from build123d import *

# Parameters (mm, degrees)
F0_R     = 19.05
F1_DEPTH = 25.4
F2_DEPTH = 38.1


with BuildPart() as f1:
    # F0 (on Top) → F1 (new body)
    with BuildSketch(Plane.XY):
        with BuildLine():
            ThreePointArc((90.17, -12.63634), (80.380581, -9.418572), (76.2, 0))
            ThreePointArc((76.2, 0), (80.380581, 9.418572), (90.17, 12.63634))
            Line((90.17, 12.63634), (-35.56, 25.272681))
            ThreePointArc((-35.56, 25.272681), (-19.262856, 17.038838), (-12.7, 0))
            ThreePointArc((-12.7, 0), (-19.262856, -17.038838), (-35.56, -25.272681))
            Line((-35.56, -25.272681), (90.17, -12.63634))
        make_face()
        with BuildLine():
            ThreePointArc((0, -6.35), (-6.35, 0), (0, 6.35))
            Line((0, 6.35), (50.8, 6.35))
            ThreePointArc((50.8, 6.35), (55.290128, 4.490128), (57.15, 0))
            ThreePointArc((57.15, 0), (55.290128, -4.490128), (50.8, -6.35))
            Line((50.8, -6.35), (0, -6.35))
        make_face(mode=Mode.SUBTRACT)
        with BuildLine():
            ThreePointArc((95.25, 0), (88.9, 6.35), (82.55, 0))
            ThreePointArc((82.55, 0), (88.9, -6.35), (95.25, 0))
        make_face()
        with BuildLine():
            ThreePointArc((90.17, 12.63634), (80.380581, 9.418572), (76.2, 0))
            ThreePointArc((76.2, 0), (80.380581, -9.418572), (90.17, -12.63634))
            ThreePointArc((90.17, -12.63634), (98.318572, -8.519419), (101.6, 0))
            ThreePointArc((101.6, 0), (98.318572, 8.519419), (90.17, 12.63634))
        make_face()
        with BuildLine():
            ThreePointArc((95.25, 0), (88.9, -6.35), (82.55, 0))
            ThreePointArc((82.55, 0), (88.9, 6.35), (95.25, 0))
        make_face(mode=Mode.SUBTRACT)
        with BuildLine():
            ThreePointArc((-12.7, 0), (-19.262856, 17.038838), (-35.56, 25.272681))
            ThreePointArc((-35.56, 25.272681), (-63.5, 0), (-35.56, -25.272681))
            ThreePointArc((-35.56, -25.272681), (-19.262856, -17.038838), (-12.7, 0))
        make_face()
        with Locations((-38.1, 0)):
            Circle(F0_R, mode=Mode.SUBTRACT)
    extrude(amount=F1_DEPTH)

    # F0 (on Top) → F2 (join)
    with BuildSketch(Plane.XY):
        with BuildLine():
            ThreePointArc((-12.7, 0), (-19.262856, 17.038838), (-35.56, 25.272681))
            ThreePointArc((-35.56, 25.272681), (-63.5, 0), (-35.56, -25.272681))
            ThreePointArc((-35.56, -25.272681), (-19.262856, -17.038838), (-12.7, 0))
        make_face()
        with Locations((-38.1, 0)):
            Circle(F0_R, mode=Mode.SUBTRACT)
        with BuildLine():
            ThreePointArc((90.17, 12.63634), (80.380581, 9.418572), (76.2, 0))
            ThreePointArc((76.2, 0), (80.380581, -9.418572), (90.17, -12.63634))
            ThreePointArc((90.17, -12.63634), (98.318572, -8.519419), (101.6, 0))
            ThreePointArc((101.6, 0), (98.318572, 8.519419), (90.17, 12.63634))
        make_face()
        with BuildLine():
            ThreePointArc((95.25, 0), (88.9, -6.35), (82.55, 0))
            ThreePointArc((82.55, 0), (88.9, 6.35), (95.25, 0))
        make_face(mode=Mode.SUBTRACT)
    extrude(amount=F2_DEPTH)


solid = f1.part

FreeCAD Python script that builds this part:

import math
import FreeCAD as App
import Part
import Sketcher
from FreeCAD import Vector
Q = App.Units.Quantity

doc = App.newDocument("Part")
params = doc.addObject("Spreadsheet::Sheet", "Params")
for row, (alias, value) in enumerate([
    ("sketch1_radius", "1 in"),
    ("sketch1_diameter", "0.5 in"),
    ("sketch1_diameter2", "1.5 in"),
    ("sketch1_radius2", "0.5 in"),
    ("sketch1_width", "2 in"),
    ("pad1_length", "1 in"),
    ("sketch2_radius", "1 in"),
    ("sketch2_diameter", "1.5 in"),
    ("sketch2_diameter2", "0.5 in"),
    ("sketch2_radius2", "0.5 in"),
    ("pad2_length", "1.5 in"),
], start=1):
    params.set(f"A{row}", alias)
    params.set(f"B{row}", "=" + value)
    params.setAlias(f"B{row}", alias)

body = doc.addObject("PartDesign::Body", "Body")

sketch1 = body.newObject("Sketcher::SketchObject", "Sketch")
sketch1.AttachmentSupport = (doc.getObject("XY_Plane"), [""])
sketch1.MapMode = "FlatFace"
sketch1.addGeometry([
    Part.LineSegment(Vector(-36, -25, 0), Vector(90, -13, 0)),
    Part.ArcOfCircle(Part.Circle(Vector(89, 0, 0), Vector(0, 0, 1), 13), math.radians(-84), math.radians(0)),
    Part.ArcOfCircle(Part.Circle(Vector(89, 0, 0), Vector(0, 0, 1), 13), math.radians(0), math.radians(84)),
    Part.LineSegment(Vector(90, 13, 0), Vector(-36, 25, 0)),
    Part.ArcOfCircle(Part.Circle(Vector(-38, 0, 0), Vector(0, 0, 1), 25), math.radians(84), math.radians(276)),
    Part.Circle(Vector(89, 0, 0), Vector(0, 0, 1), 6),
    Part.Circle(Vector(-38, 0, 0), Vector(0, 0, 1), 19),
    Part.LineSegment(Vector(51, -6, 0), Vector(0, -6, 0)),
    Part.ArcOfCircle(Part.Circle(Vector(0, 0, 0), Vector(0, 0, 1), 6), math.radians(90), math.radians(270)),
    Part.LineSegment(Vector(0, 6, 0), Vector(51, 6, 0)),
    Part.ArcOfCircle(Part.Circle(Vector(51, 0, 0), Vector(0, 0, 1), 6), math.radians(0), math.radians(90)),
    Part.ArcOfCircle(Part.Circle(Vector(51, 0, 0), Vector(0, 0, 1), 6), math.radians(-90), math.radians(0)),
], False)
sketch1.addConstraint([
    Sketcher.Constraint("Tangent", 0, 2, 1, 1),
    Sketcher.Constraint("Tangent", 1, 2, 2, 1),
    Sketcher.Constraint("Tangent", 2, 2, 3, 1),
    Sketcher.Constraint("Tangent", 3, 2, 4, 1),
    Sketcher.Constraint("Tangent", 4, 2, 0, 1),
    Sketcher.Constraint("Tangent", 7, 2, 8, 2),
    Sketcher.Constraint("Tangent", 8, 1, 9, 1),
    Sketcher.Constraint("Tangent", 9, 2, 10, 2),
    Sketcher.Constraint("Tangent", 10, 1, 11, 2),
    Sketcher.Constraint("Tangent", 11, 1, 7, 1),
    Sketcher.Constraint("Horizontal", 7),
    Sketcher.Constraint("Horizontal", 9),
    Sketcher.Constraint("Coincident", 8, 3, -1, 1),
    Sketcher.Constraint("Coincident", 5, 3, 1, 3),
    Sketcher.Constraint("Coincident", 6, 3, 4, 3),
    Sketcher.Constraint("Equal", 1, 2),
    Sketcher.Constraint("Equal", 5, 8),
    Sketcher.Constraint("Equal", 8, 10),
    Sketcher.Constraint("Symmetric", 0, 2, 2, 2, -1),
    Sketcher.Constraint("PointOnObject", 1, 2, -1),
    Sketcher.Constraint("PointOnObject", 10, 1, -1),
    Sketcher.Constraint("Radius", 4, Q("1 in")),
    Sketcher.Constraint("Diameter", 5, Q("0.5 in")),
    Sketcher.Constraint("Diameter", 6, Q("1.5 in")),
    Sketcher.Constraint("Radius", 1, Q("0.5 in")),
    Sketcher.Constraint("DistanceX", 7, 2, 7, 1, Q("2 in")),
    Sketcher.Constraint("DistanceX", -1, 1, 1, 2, Q("4 in")),
    Sketcher.Constraint("DistanceX", 4, 3, 1, 3, Q("5 in")),
])
sketch1.setExpression("Constraints[21]", "Params.sketch1_radius")
sketch1.setExpression("Constraints[22]", "Params.sketch1_diameter")
sketch1.setExpression("Constraints[23]", "Params.sketch1_diameter2")
sketch1.setExpression("Constraints[24]", "Params.sketch1_radius2")
sketch1.setExpression("Constraints[25]", "Params.sketch1_width")
pad1 = body.newObject("PartDesign::Pad", "Pad")
pad1.Profile = sketch1
pad1.setExpression("Length", "Params.pad1_length")

sketch2 = body.newObject("Sketcher::SketchObject", "Sketch001")
sketch2.AttachmentSupport = (doc.getObject("XY_Plane"), [""])
sketch2.MapMode = "FlatFace"
sketch2.addGeometry([
    Part.ArcOfCircle(Part.Circle(Vector(-38, 0, 0), Vector(0, 0, 1), 25), math.radians(0), math.radians(84)),
    Part.ArcOfCircle(Part.Circle(Vector(-38, 0, 0), Vector(0, 0, 1), 25), math.radians(84), math.radians(276)),
    Part.ArcOfCircle(Part.Circle(Vector(-38, 0, 0), Vector(0, 0, 1), 25), math.radians(-84), math.radians(0)),
    Part.Circle(Vector(-38, 0, 0), Vector(0, 0, 1), 19),
    Part.ArcOfCircle(Part.Circle(Vector(89, 0, 0), Vector(0, 0, 1), 13), math.radians(84), math.radians(180)),
    Part.ArcOfCircle(Part.Circle(Vector(89, 0, 0), Vector(0, 0, 1), 13), math.radians(180), math.radians(276)),
    Part.ArcOfCircle(Part.Circle(Vector(89, 0, 0), Vector(0, 0, 1), 13), math.radians(-84), math.radians(0)),
    Part.ArcOfCircle(Part.Circle(Vector(89, 0, 0), Vector(0, 0, 1), 13), math.radians(0), math.radians(84)),
    Part.Circle(Vector(89, 0, 0), Vector(0, 0, 1), 6),
], False)
sketch2.addConstraint([
    Sketcher.Constraint("Tangent", 0, 2, 1, 1),
    Sketcher.Constraint("Tangent", 1, 2, 2, 1),
    Sketcher.Constraint("Tangent", 2, 2, 0, 1),
    Sketcher.Constraint("Tangent", 4, 2, 5, 1),
    Sketcher.Constraint("Tangent", 5, 2, 6, 1),
    Sketcher.Constraint("Tangent", 6, 2, 7, 1),
    Sketcher.Constraint("Tangent", 7, 2, 4, 1),
    Sketcher.Constraint("Coincident", 3, 3, 0, 3),
    Sketcher.Constraint("Coincident", 8, 3, 4, 3),
    Sketcher.Constraint("Equal", 4, 5),
    Sketcher.Constraint("Symmetric", 0, 2, 1, 2, -1),
    Sketcher.Constraint("Symmetric", 5, 2, 7, 2, -1),
    Sketcher.Constraint("PointOnObject", 2, 2, -1),
    Sketcher.Constraint("PointOnObject", 4, 2, -1),
    Sketcher.Constraint("PointOnObject", 6, 2, -1),
    Sketcher.Constraint("Radius", 0, Q("1 in")),
    Sketcher.Constraint("Diameter", 3, Q("1.5 in")),
    Sketcher.Constraint("Diameter", 8, Q("0.5 in")),
    Sketcher.Constraint("Radius", 4, Q("0.5 in")),
    Sketcher.Constraint("DistanceX", -1, 1, 4, 2, Q("3 in")),
    Sketcher.Constraint("DistanceX", 1, 3, 4, 3, Q("5 in")),
    Sketcher.Constraint("DistanceX", 0, 2, -1, 1, Q("1.4 in")),
    Sketcher.Constraint("DistanceX", -1, 1, 5, 2, Q("3.55 in")),
])
sketch2.setExpression("Constraints[15]", "Params.sketch2_radius")
sketch2.setExpression("Constraints[16]", "Params.sketch2_diameter")
sketch2.setExpression("Constraints[17]", "Params.sketch2_diameter2")
sketch2.setExpression("Constraints[18]", "Params.sketch2_radius2")
pad2 = body.newObject("PartDesign::Pad", "Pad001")
pad2.Profile = sketch2
pad2.setExpression("Length", "Params.pad2_length")

doc.recompute()
